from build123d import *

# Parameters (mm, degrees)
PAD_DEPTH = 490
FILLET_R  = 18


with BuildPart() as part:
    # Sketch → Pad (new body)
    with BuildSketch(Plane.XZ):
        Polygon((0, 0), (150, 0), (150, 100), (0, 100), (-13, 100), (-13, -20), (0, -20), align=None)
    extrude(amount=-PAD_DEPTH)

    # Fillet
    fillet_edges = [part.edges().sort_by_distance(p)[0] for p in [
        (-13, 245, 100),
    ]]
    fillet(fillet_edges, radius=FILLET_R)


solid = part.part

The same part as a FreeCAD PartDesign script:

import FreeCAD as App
import Part
import Sketcher

V = App.Vector
Q = App.Units.Quantity


def edges_at(feature, points):
    """Names of the edges that pass closest to the given points."""
    edges = feature.Shape.Edges
    near = lambda p: min(range(len(edges)), key=lambda i: edges[i].distToShape(Part.Vertex(*p))[0])
    return sorted({f"Edge{near(p) + 1}" for p in points})

doc = App.newDocument("Part")
body = doc.addObject("PartDesign::Body", "Body")

sketch1 = body.newObject("Sketcher::SketchObject", "Sketch")
sketch1.AttachmentSupport = (doc.getObject("XZ_Plane"), [""])
sketch1.MapMode = "FlatFace"
sketch1.addGeometry([
    Part.LineSegment(V(0, 0, 0), V(150, 0, 0)),
    Part.LineSegment(V(150, 0, 0), V(150, 100, 0)),
    Part.LineSegment(V(150, 100, 0), V(-13, 100, 0)),
    Part.LineSegment(V(-13, 100, 0), V(-13, -20, 0)),
    Part.LineSegment(V(-13, -20, 0), V(0, -20, 0)),
    Part.LineSegment(V(0, -20, 0), V(0, 0, 0)),
], False)
sketch1.addConstraint([
    Sketcher.Constraint("Coincident", 0, 2, 1, 1),
    Sketcher.Constraint("Coincident", 1, 2, 2, 1),
    Sketcher.Constraint("Coincident", 2, 2, 3, 1),
    Sketcher.Constraint("Coincident", 3, 2, 4, 1),
    Sketcher.Constraint("Coincident", 4, 2, 5, 1),
    Sketcher.Constraint("Coincident", 5, 2, 0, 1),
    Sketcher.Constraint("Horizontal", 0),
    Sketcher.Constraint("Vertical", 1),
    Sketcher.Constraint("Horizontal", 2),
    Sketcher.Constraint("Vertical", 3),
    Sketcher.Constraint("Horizontal", 4),
    Sketcher.Constraint("Vertical", 5),
    Sketcher.Constraint("Coincident", 5, 2, -1, 1),
    Sketcher.Constraint("DistanceX", 0, 1, 0, 2, Q("150 mm")),
    Sketcher.Constraint("DistanceX", 2, 2, 2, 1, Q("163 mm")),
    Sketcher.Constraint("DistanceY", 1, 1, 1, 2, Q("100 mm")),
    Sketcher.Constraint("DistanceY", 3, 2, 3, 1, Q("120 mm")),
])
pad1 = body.newObject("PartDesign::Pad", "Pad")
pad1.Profile = sketch1
pad1.Length = 490
pad1.Reversed = True
doc.recompute()

fillet = body.newObject("PartDesign::Fillet", "Fillet")
fillet.Base = (pad1, edges_at(pad1, [(-13, 245, 100)]))
fillet.Radius = 18

doc.recompute()
